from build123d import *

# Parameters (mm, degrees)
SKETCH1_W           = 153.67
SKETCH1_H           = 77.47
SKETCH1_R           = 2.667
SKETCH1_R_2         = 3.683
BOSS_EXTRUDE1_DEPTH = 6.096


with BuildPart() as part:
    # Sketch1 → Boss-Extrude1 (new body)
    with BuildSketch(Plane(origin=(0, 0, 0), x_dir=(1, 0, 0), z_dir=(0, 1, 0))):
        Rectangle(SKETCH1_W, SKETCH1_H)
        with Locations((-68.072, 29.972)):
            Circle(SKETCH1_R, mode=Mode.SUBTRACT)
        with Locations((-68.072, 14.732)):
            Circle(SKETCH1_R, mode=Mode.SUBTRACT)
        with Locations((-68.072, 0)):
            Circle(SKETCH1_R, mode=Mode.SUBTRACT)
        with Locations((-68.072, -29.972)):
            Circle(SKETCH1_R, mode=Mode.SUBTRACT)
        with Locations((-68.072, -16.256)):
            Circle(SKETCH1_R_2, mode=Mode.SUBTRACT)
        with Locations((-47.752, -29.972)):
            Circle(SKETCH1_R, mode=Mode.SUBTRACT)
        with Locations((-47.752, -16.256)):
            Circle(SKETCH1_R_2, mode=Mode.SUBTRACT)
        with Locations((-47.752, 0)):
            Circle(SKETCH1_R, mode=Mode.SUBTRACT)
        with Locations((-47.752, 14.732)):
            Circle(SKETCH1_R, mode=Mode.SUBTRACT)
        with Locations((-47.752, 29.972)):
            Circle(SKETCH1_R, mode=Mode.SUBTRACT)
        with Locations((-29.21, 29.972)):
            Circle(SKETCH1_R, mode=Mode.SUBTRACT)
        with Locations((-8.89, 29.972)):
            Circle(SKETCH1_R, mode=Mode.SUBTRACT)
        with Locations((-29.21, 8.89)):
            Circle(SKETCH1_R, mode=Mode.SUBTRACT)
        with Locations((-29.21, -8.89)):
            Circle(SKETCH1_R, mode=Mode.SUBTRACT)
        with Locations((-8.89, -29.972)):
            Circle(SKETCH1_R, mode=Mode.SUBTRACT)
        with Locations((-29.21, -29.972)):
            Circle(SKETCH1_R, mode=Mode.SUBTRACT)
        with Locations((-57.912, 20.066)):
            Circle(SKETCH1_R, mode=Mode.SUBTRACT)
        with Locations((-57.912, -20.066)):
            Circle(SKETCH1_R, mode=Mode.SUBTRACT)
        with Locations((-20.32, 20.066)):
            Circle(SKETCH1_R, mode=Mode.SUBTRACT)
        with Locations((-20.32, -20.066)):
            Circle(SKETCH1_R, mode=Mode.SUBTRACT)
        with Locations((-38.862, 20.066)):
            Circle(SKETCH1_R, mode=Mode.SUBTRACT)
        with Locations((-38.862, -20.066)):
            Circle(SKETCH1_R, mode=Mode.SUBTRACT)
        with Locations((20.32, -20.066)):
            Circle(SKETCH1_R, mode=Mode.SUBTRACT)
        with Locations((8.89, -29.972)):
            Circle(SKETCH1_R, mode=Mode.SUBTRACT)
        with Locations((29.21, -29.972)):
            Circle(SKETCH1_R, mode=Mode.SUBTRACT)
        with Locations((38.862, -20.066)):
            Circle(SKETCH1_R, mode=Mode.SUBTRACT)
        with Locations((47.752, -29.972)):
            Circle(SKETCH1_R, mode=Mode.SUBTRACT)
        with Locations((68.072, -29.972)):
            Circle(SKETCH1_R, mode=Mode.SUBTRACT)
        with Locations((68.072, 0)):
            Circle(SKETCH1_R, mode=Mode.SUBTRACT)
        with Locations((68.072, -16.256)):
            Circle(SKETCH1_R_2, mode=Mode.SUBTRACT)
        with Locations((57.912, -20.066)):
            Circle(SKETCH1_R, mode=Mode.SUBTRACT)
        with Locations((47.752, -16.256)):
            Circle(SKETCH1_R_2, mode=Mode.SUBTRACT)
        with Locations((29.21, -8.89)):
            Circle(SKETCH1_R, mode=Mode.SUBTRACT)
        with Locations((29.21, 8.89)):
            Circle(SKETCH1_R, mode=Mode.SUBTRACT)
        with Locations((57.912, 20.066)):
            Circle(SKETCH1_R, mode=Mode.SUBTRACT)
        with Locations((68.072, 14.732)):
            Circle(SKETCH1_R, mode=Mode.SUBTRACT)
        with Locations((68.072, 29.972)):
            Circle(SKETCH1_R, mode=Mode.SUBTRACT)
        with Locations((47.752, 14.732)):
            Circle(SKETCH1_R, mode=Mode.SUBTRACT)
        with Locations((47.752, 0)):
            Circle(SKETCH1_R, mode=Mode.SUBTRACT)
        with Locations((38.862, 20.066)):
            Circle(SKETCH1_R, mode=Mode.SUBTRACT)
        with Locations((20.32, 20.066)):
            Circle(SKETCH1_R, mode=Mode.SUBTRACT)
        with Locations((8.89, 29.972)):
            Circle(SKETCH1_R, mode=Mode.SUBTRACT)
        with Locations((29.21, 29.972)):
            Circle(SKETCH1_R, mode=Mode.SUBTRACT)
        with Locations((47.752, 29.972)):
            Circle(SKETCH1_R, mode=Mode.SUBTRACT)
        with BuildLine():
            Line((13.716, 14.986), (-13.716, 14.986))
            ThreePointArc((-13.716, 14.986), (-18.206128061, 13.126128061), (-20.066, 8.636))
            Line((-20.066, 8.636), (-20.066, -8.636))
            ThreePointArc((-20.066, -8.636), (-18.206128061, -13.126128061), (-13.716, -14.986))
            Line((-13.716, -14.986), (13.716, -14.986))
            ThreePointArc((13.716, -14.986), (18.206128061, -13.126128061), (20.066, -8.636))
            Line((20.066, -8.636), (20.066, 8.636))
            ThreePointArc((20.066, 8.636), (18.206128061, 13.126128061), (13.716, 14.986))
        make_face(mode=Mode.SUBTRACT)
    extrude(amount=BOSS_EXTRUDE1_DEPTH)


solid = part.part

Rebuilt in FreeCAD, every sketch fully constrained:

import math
import FreeCAD as App
import Part
import Sketcher
Q = App.Units.Quantity


def add_polygon(sketch, points):
    """Adds a closed chain of lines whose ends are joined by coincident constraints."""
    first, n = sketch.GeometryCount, len(points)
    for a, b in zip(points, points[1:] + points[:1]):
        sketch.addGeometry(Part.LineSegment(App.Vector(*a, 0), App.Vector(*b, 0)), False)
    for i in range(n):
        sketch.addConstraint(Sketcher.Constraint("Coincident", first + i, 2, first + (i + 1) % n, 1))

doc = App.newDocument("Part")
body = doc.addObject("PartDesign::Body", "Body")

# Sketch on XZ plane
sketch1 = body.newObject("Sketcher::SketchObject", "Sketch")
sketch1.AttachmentSupport = (doc.getObject("XZ_Plane"), [""])
sketch1.MapMode = "FlatFace"
add_polygon(sketch1, [(-76.8, -38.7), (-76.8, 38.7), (76.8, 38.7), (76.8, -38.7)])  # lines 0-3
sketch1.addGeometry(Part.Circle(App.Vector(-68.1, 30, 0), App.Vector(0, 0, 1), 2.7), False)  # 4
sketch1.addGeometry(Part.Circle(App.Vector(-47.8, 30, 0), App.Vector(0, 0, 1), 2.7), False)  # 5
sketch1.addGeometry(Part.Circle(App.Vector(-57.9, 20.1, 0), App.Vector(0, 0, 1), 2.7), False)  # 6
sketch1.addGeometry(Part.Circle(App.Vector(-38.9, 20.1, 0), App.Vector(0, 0, 1), 2.7), False)  # 7
sketch1.addGeometry(Part.Circle(App.Vector(-29.2, 30, 0), App.Vector(0, 0, 1), 2.7), False)  # 8
sketch1.addGeometry(Part.Circle(App.Vector(-8.9, 30, 0), App.Vector(0, 0, 1), 2.7), False)  # 9
sketch1.addGeometry(Part.Circle(App.Vector(-20.3, 20.1, 0), App.Vector(0, 0, 1), 2.7), False)  # 10
sketch1.addGeometry(Part.Circle(App.Vector(-68.1, 16.3, 0), App.Vector(0, 0, 1), 3.7), False)  # 11
sketch1.addGeometry(Part.Circle(App.Vector(-47.8, 16.3, 0), App.Vector(0, 0, 1), 3.7), False)  # 12
sketch1.addGeometry(Part.Circle(App.Vector(-29.2, 8.9, 0), App.Vector(0, 0, 1), 2.7), False)  # 13
sketch1.addGeometry(Part.Circle(App.Vector(8.9, 30, 0), App.Vector(0, 0, 1), 2.7), False)  # 14
sketch1.addGeometry(Part.Circle(App.Vector(29.2, 30, 0), App.Vector(0, 0, 1), 2.7), False)  # 15
sketch1.addGeometry(Part.Circle(App.Vector(20.3, 20.1, 0), App.Vector(0, 0, 1), 2.7), False)  # 16
sketch1.addGeometry(Part.Circle(App.Vector(47.8, 30, 0), App.Vector(0, 0, 1), 2.7), False)  # 17
sketch1.addGeometry(Part.Circle(App.Vector(68.1, 30, 0), App.Vector(0, 0, 1), 2.7), False)  # 18
sketch1.addGeometry(Part.Circle(App.Vector(38.9, 20.1, 0), App.Vector(0, 0, 1), 2.7), False)  # 19
sketch1.addGeometry(Part.Circle(App.Vector(57.9, 20.1, 0), App.Vector(0, 0, 1), 2.7), False)  # 20
sketch1.addGeometry(Part.Circle(App.Vector(29.2, 8.9, 0), App.Vector(0, 0, 1), 2.7), False)  # 21
sketch1.addGeometry(Part.Circle(App.Vector(47.8, 16.3, 0), App.Vector(0, 0, 1), 3.7), False)  # 22
sketch1.addGeometry(Part.Circle(App.Vector(68.1, 16.3, 0), App.Vector(0, 0, 1), 3.7), False)  # 23
sketch1.addGeometry(Part.Circle(App.Vector(-68.1, 0, 0), App.Vector(0, 0, 1), 2.7), False)  # 24
sketch1.addGeometry(Part.Circle(App.Vector(-47.8, 0, 0), App.Vector(0, 0, 1), 2.7), False)  # 25
sketch1.addGeometry(Part.Circle(App.Vector(-68.1, -14.7, 0), App.Vector(0, 0, 1), 2.7), False)  # 26
sketch1.addGeometry(Part.Circle(App.Vector(-47.8, -14.7, 0), App.Vector(0, 0, 1), 2.7), False)  # 27
sketch1.addGeometry(Part.Circle(App.Vector(-29.2, -8.9, 0), App.Vector(0, 0, 1), 2.7), False)  # 28
sketch1.addGeometry(Part.Circle(App.Vector(-57.9, -20.1, 0), App.Vector(0, 0, 1), 2.7), False)  # 29
sketch1.addGeometry(Part.Circle(App.Vector(-38.9, -20.1, 0), App.Vector(0, 0, 1), 2.7), False)  # 30
sketch1.addGeometry(Part.Circle(App.Vector(-68.1, -30, 0), App.Vector(0, 0, 1), 2.7), False)  # 31
sketch1.addGeometry(Part.Circle(App.Vector(-47.8, -30, 0), App.Vector(0, 0, 1), 2.7), False)  # 32
sketch1.addGeometry(Part.Circle(App.Vector(-20.3, -20.1, 0), App.Vector(0, 0, 1), 2.7), False)  # 33
sketch1.addGeometry(Part.Circle(App.Vector(-29.2, -30, 0), App.Vector(0, 0, 1), 2.7), False)  # 34
sketch1.addGeometry(Part.Circle(App.Vector(-8.9, -30, 0), App.Vector(0, 0, 1), 2.7), False)  # 35
sketch1.addGeometry(Part.LineSegment(App.Vector(-13.7, -15, 0), App.Vector(13.7, -15, 0)), False)  # 36
sketch1.addGeometry(Part.ArcOfCircle(Part.Circle(App.Vector(13.7, -8.6, 0), App.Vector(0, 0, 1), 6.3), math.radians(-90), math.radians(0)), False)  # 37
sketch1.addGeometry(Part.LineSegment(App.Vector(20.1, -8.6, 0), App.Vector(20.1, 8.6, 0)), False)  # 38
sketch1.addGeometry(Part.ArcOfCircle(Part.Circle(App.Vector(13.7, 8.6, 0), App.Vector(0, 0, 1), 6.3), math.radians(0), math.radians(90)), False)  # 39
sketch1.addGeometry(Part.LineSegment(App.Vector(13.7, 15, 0), App.Vector(-13.7, 15, 0)), False)  # 40
sketch1.addGeometry(Part.ArcOfCircle(Part.Circle(App.Vector(-13.7, 8.6, 0), App.Vector(0, 0, 1), 6.3), math.radians(90), math.radians(180)), False)  # 41
sketch1.addGeometry(Part.LineSegment(App.Vector(-20.1, 8.6, 0), App.Vector(-20.1, -8.6, 0)), False)  # 42
sketch1.addGeometry(Part.ArcOfCircle(Part.Circle(App.Vector(-13.7, -8.6, 0), App.Vector(0, 0, 1), 6.3), math.radians(180), math.radians(270)), False)  # 43
sketch1.addGeometry(Part.Circle(App.Vector(29.2, -8.9, 0), App.Vector(0, 0, 1), 2.7), False)  # 44
sketch1.addGeometry(Part.Circle(App.Vector(47.8, 0, 0), App.Vector(0, 0, 1), 2.7), False)  # 45
sketch1.addGeometry(Part.Circle(App.Vector(68.1, 0, 0), App.Vector(0, 0, 1), 2.7), False)  # 46
sketch1.addGeometry(Part.Circle(App.Vector(47.8, -14.7, 0), App.Vector(0, 0, 1), 2.7), False)  # 47
sketch1.addGeometry(Part.Circle(App.Vector(68.1, -14.7, 0), App.Vector(0, 0, 1), 2.7), False)  # 48
sketch1.addGeometry(Part.Circle(App.Vector(20.3, -20.1, 0), App.Vector(0, 0, 1), 2.7), False)  # 49
sketch1.addGeometry(Part.Circle(App.Vector(8.9, -30, 0), App.Vector(0, 0, 1), 2.7), False)  # 50
sketch1.addGeometry(Part.Circle(App.Vector(29.2, -30, 0), App.Vector(0, 0, 1), 2.7), False)  # 51
sketch1.addGeometry(Part.Circle(App.Vector(38.9, -20.1, 0), App.Vector(0, 0, 1), 2.7), False)  # 52
sketch1.addGeometry(Part.Circle(App.Vector(57.9, -20.1, 0), App.Vector(0, 0, 1), 2.7), False)  # 53
sketch1.addGeometry(Part.Circle(App.Vector(47.8, -30, 0), App.Vector(0, 0, 1), 2.7), False)  # 54
sketch1.addGeometry(Part.Circle(App.Vector(68.1, -30, 0), App.Vector(0, 0, 1), 2.7), False)  # 55
sketch1.addConstraint([
    Sketcher.Constraint("Tangent", 36, 2, 37, 1),
    Sketcher.Constraint("Tangent", 37, 2, 38, 1),
    Sketcher.Constraint("Tangent", 38, 2, 39, 1),
    Sketcher.Constraint("Tangent", 39, 2, 40, 1),
    Sketcher.Constraint("Tangent", 40, 2, 41, 1),
    Sketcher.Constraint("Tangent", 41, 2, 42, 1),
    Sketcher.Constraint("Tangent", 42, 2, 43, 1),
    Sketcher.Constraint("Tangent", 43, 2, 36, 1),
    Sketcher.Constraint("Vertical", 0),
    Sketcher.Constraint("Horizontal", 1),
    Sketcher.Constraint("Vertical", 2),
    Sketcher.Constraint("Horizontal", 3),
    Sketcher.Constraint("Horizontal", 36),
    Sketcher.Constraint("Vertical", 38),
    Sketcher.Constraint("Horizontal", 40),
    Sketcher.Constraint("Vertical", 42),
    Sketcher.Constraint("Equal", 4, 5),
    Sketcher.Constraint("Equal", 5, 6),
    Sketcher.Constraint("Equal", 6, 7),
    Sketcher.Constraint("Equal", 7, 8),
    Sketcher.Constraint("Equal", 8, 9),
    Sketcher.Constraint("Equal", 9, 10),
    Sketcher.Constraint("Equal", 11, 12),
    Sketcher.Constraint("Equal", 10, 13),
    Sketcher.Constraint("Equal", 13, 14),
    Sketcher.Constraint("Equal", 14, 15),
    Sketcher.Constraint("Equal", 15, 16),
    Sketcher.Constraint("Equal", 16, 17),
    Sketcher.Constraint("Equal", 17, 18),
    Sketcher.Constraint("Equal", 18, 19),
    Sketcher.Constraint("Equal", 19, 20),
    Sketcher.Constraint("Equal", 20, 21),
    Sketcher.Constraint("Equal", 12, 22),
    Sketcher.Constraint("Equal", 22, 23),
    Sketcher.Constraint("Equal", 21, 24),
    Sketcher.Constraint("Equal", 24, 25),
    Sketcher.Constraint("Equal", 25, 26),
    Sketcher.Constraint("Equal", 26, 27),
    Sketcher.Constraint("Equal", 27, 28),
    Sketcher.Constraint("Equal", 28, 29),
    Sketcher.Constraint("Equal", 29, 30),
    Sketcher.Constraint("Equal", 30, 31),
    Sketcher.Constraint("Equal", 31, 32),
    Sketcher.Constraint("Equal", 32, 33),
    Sketcher.Constraint("Equal", 33, 34),
    Sketcher.Constraint("Equal", 34, 35),
    Sketcher.Constraint("Equal", 37, 39),
    Sketcher.Constraint("Equal", 39, 41),
    Sketcher.Constraint("Equal", 41, 43),
    Sketcher.Constraint("Equal", 35, 44),
    Sketcher.Constraint("Equal", 44, 45),
    Sketcher.Constraint("Equal", 45, 46),
    Sketcher.Constraint("Equal", 46, 47),
    Sketcher.Constraint("Equal", 47, 48),
    Sketcher.Constraint("Equal", 48, 49),
    Sketcher.Constraint("Equal", 49, 50),
    Sketcher.Constraint("Equal", 50, 51),
    Sketcher.Constraint("Equal", 51, 52),
    Sketcher.Constraint("Equal", 52, 53),
    Sketcher.Constraint("Equal", 53, 54),
    Sketcher.Constraint("Equal", 54, 55),
    Sketcher.Constraint("Symmetric", 21, 3, 28, 3, -1, 1),
    Sketcher.Constraint("Symmetric", 20, 3, 29, 3, -1, 1),
    Sketcher.Constraint("Symmetric", 19, 3, 30, 3, -1, 1),
    Sketcher.Constraint("Symmetric", 18, 3, 31, 3, -1, 1),
    Sketcher.Constraint("Symmetric", 17, 3, 32, 3, -1, 1),
    Sketcher.Constraint("Symmetric", 16, 3, 33, 3, -1, 1),
    Sketcher.Constraint("Symmetric", 15, 3, 34, 3, -1, 1),
    Sketcher.Constraint("Symmetric", 14, 3, 35, 3, -1, 1),
    Sketcher.Constraint("Symmetric", 37, 3, 41, 3, -1, 1),
    Sketcher.Constraint("Symmetric", 13, 3, 44, 3, -1, 1),
    Sketcher.Constraint("Symmetric", 25, 3, 45, 3, -1, 1),
    Sketcher.Constraint("Symmetric", 24, 3, 46, 3, -1, 1),
    Sketcher.Constraint("Symmetric", 10, 3, 49, 3, -1, 1),
    Sketcher.Constraint("Symmetric", 9, 3, 50, 3, -1, 1),
    Sketcher.Constraint("Symmetric", 8, 3, 51, 3, -1, 1),
    Sketcher.Constraint("Symmetric", 7, 3, 52, 3, -1, 1),
    Sketcher.Constraint("Symmetric", 6, 3, 53, 3, -1, 1),
    Sketcher.Constraint("Symmetric", 5, 3, 54, 3, -1, 1),
    Sketcher.Constraint("Symmetric", 4, 3, 55, 3, -1, 1),
    Sketcher.Constraint("Symmetric", 0, 2, 2, 2, -1, 1),
    Sketcher.Constraint("Symmetric", 9, 3, 14, 3, -2),
    Sketcher.Constraint("Symmetric", 8, 3, 15, 3, -2),
    Sketcher.Constraint("Symmetric", 10, 3, 16, 3, -2),
    Sketcher.Constraint("Symmetric", 5, 3, 17, 3, -2),
    Sketcher.Constraint("Symmetric", 4, 3, 18, 3, -2),
    Sketcher.Constraint("Symmetric", 7, 3, 19, 3, -2),
    Sketcher.Constraint("Symmetric", 6, 3, 20, 3, -2),
    Sketcher.Constraint("Symmetric", 13, 3, 21, 3, -2),
    Sketcher.Constraint("Symmetric", 12, 3, 22, 3, -2),
    Sketcher.Constraint("Symmetric", 11, 3, 23, 3, -2),
    Sketcher.Constraint("Symmetric", 27, 3, 47, 3, -2),
    Sketcher.Constraint("Symmetric", 26, 3, 48, 3, -2),
    Sketcher.Constraint("PointOnObject", 24, 3, -1),
    Sketcher.Constraint("PointOnObject", 25, 3, -1),
    Sketcher.Constraint("Horizontal", 4, 3, 5, 3),
    Sketcher.Constraint("Horizontal", 6, 3, 7, 3),
    Sketcher.Constraint("Horizontal", 5, 3, 8, 3),
    Sketcher.Constraint("Horizontal", 8, 3, 9, 3),
    Sketcher.Constraint("Horizontal", 7, 3, 10, 3),
    Sketcher.Constraint("Horizontal", 11, 3, 12, 3),
    Sketcher.Constraint("Horizontal", 26, 3, 27, 3),
    Sketcher.Constraint("Vertical", 4, 3, 11, 3),
    Sketcher.Constraint("Vertical", 5, 3, 12, 3),
    Sketcher.Constraint("Vertical", 8, 3, 13, 3),
    Sketcher.Constraint("Vertical", 11, 3, 24, 3),
    Sketcher.Constraint("Vertical", 12, 3, 25, 3),
    Sketcher.Constraint("Vertical", 24, 3, 26, 3),
    Sketcher.Constraint("Vertical", 25, 3, 27, 3),
    Sketcher.Constraint("Diameter", 4, Q("0.21 in")),
    Sketcher.Constraint("Diameter", 11, Q("0.29 in")),
    Sketcher.Constraint("Radius", 37, Q("0.25 in")),
    Sketcher.Constraint("DistanceX", 1, 1, 1, 2, Q("6.05 in")),
    Sketcher.Constraint("DistanceX", 36, 1, 36, 2, Q("1.08 in")),
    Sketcher.Constraint("DistanceY", 0, 1, 0, 2, Q("3.05 in")),
    Sketcher.Constraint("DistanceY", 38, 1, 38, 2, Q("0.68 in")),
    Sketcher.Constraint("DistanceX", 10, 3, -1, 1, Q("0.8 in")),
    Sketcher.Constraint("DistanceX", 4, 3, 5, 3, Q("0.8 in")),
    Sketcher.Constraint("DistanceX", 6, 3, 5, 3, Q("0.4 in")),
    Sketcher.Constraint("DistanceX", 8, 3, 9, 3, Q("0.8 in")),
    Sketcher.Constraint("DistanceX", 9, 3, 14, 3, Q("0.7 in")),
    Sketcher.Constraint("DistanceY", 28, 3, 13, 3, Q("0.7 in")),
    Sketcher.Constraint("DistanceY", 31, 3, 26, 3, Q("0.6 in")),
    Sketcher.Constraint("DistanceY", 49, 3, 36, 2, Q("0.2 in")),
    Sketcher.Constraint("DistanceX", 4, 3, -1, 1, Q("2.68 in")),
    Sketcher.Constraint("DistanceY", -1, 1, 4, 3, Q("1.18 in")),
    Sketcher.Constraint("DistanceX", 7, 3, -1, 1, Q("1.53 in")),
    Sketcher.Constraint("DistanceY", -1, 1, 11, 3, Q("0.64 in")),
])
pad1 = body.newObject("PartDesign::Pad", "Pad")
pad1.Profile = sketch1
pad1.Length = Q("0.24 in")
pad1.Reversed = True

doc.recompute()
